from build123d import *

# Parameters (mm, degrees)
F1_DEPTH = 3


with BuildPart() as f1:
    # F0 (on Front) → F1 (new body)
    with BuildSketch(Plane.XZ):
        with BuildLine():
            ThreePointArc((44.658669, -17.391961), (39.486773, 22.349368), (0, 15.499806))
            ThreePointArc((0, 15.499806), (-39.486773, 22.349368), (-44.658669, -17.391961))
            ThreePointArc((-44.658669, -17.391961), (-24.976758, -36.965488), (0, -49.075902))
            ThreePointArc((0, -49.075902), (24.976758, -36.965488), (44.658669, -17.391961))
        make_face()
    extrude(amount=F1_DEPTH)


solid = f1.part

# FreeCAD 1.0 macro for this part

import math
import FreeCAD as App
import Part
import Sketcher

V = App.Vector
Q = App.Units.Quantity

doc = App.newDocument("Part")
body = doc.addObject("PartDesign::Body", "Body")

# Sketch on XZ plane
sketch1 = doc.addObject("Sketcher::SketchObject", "Sketch")
body.addObject(sketch1)
sketch1.AttachmentSupport = (doc.XZ_Plane, [""])
sketch1.MapMode = "FlatFace"
sketch1.addGeometry(Part.ArcOfCircle(Part.Circle(V(23, 0, 0), V(0, 0, 1), 28), math.radians(-39), math.radians(146)), False)
sketch1.addGeometry(Part.ArcOfCircle(Part.Circle(V(-23, 0, 0), V(0, 0, 1), 28), math.radians(34), math.radians(219)), False)
sketch1.addGeometry(Part.ArcOfCircle(Part.Circle(V(24, 32, 0), V(0, 0, 1), 84), math.radians(-144), math.radians(-106)), False)
sketch1.addGeometry(Part.ArcOfCircle(Part.Circle(V(-24, 32, 0), V(0, 0, 1), 84), math.radians(-74), math.radians(-36)), False)
sketch1.addConstraint(Sketcher.Constraint("Coincident", 0, 2, 1, 1))
sketch1.addConstraint(Sketcher.Constraint("Coincident", 1, 2, 2, 1))
sketch1.addConstraint(Sketcher.Constraint("Coincident", 2, 2, 3, 1))
sketch1.addConstraint(Sketcher.Constraint("Coincident", 3, 2, 0, 1))
sketch1.addConstraint(Sketcher.Constraint("Equal", 0, 1))
sketch1.addConstraint(Sketcher.Constraint("Equal", 2, 3))
sketch1.addConstraint(Sketcher.Constraint("Symmetric", 0, 3, 1, 3, -1, 1))
sketch1.addConstraint(Sketcher.Constraint("Symmetric", 2, 3, 3, 3, -2))
sketch1.addConstraint(Sketcher.Constraint("PointOnObject", 0, 3, -1))
sketch1.addConstraint(Sketcher.Constraint("Radius", 2, Q("84.202202 mm")))
sketch1.addConstraint(Sketcher.Constraint("Radius", 0, Q("27.756924 mm")))
sketch1.addConstraint(Sketcher.Constraint("DistanceY", 2, 2, -1, 1, Q("49.075902 mm")))
sketch1.addConstraint(Sketcher.Constraint("DistanceX", 1, 2, -1, 1, Q("44.658669 mm")))
sketch1.addConstraint(Sketcher.Constraint("DistanceY", 1, 2, -1, 1, Q("17.391961 mm")))
pad1 = doc.addObject("PartDesign::Pad", "Pad")
body.addObject(pad1)
pad1.Profile = sketch1
pad1.Length = 3

doc.recompute()
